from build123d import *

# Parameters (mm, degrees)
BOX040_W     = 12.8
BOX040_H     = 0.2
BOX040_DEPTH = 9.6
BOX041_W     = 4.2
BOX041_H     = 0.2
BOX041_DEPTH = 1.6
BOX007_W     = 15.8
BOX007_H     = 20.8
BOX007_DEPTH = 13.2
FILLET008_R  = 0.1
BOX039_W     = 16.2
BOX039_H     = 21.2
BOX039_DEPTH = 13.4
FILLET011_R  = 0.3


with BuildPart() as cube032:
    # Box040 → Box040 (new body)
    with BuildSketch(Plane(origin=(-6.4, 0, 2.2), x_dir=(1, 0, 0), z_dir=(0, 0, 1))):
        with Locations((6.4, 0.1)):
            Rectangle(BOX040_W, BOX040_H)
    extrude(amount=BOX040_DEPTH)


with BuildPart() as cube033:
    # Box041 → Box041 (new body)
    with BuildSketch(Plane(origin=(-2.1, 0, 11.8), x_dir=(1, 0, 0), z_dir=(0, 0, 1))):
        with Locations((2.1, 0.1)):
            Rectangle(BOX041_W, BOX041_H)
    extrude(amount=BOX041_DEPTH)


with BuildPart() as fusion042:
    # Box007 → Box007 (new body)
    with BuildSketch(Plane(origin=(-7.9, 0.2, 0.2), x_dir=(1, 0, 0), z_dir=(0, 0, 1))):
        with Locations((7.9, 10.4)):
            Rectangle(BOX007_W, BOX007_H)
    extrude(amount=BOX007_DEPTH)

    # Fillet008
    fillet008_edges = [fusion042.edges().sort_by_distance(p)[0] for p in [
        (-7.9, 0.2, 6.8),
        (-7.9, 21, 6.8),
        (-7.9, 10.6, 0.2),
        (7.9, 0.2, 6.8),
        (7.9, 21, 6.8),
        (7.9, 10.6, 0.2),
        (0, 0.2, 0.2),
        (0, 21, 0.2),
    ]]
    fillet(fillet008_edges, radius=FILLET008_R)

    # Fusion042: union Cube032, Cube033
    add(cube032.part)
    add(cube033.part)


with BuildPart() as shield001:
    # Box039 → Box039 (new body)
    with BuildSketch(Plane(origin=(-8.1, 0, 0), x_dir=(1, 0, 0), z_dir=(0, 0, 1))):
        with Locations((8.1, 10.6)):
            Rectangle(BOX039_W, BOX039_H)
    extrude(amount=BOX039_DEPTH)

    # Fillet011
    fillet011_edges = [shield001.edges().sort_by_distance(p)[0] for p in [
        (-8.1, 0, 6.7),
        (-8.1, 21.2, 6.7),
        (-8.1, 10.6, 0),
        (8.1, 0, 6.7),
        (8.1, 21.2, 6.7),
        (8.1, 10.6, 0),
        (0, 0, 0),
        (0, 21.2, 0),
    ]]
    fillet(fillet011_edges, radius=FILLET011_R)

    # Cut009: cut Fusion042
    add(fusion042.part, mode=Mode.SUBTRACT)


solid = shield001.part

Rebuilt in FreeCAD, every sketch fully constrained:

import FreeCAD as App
import Part
import Sketcher

V = App.Vector


def edges_at(feature, points):
    """Names of the edges that pass closest to the given points."""
    edges = feature.Shape.Edges
    near = lambda p: min(range(len(edges)), key=lambda i: edges[i].distToShape(Part.Vertex(*p))[0])
    return sorted({f"Edge{near(p) + 1}" for p in points})

doc = App.newDocument("Part")
body = doc.addObject("PartDesign::Body", "Body")

# Sketch on XY plane
sketch1 = doc.addObject("Sketcher::SketchObject", "Sketch")
body.addObject(sketch1)
sketch1.AttachmentSupport = (doc.XY_Plane, [""])
sketch1.MapMode = "FlatFace"
sketch1.AttachmentOffset = App.Placement(V(0, 0, 2.2), App.Rotation())
sketch1.addGeometry([
    Part.LineSegment(V(-6.4, 0.2, 0), V(-6.4, 0, 0)),
    Part.LineSegment(V(-6.4, 0, 0), V(6.4, 0, 0)),
    Part.LineSegment(V(6.4, 0, 0), V(6.4, 0.2, 0)),
    Part.LineSegment(V(6.4, 0.2, 0), V(-6.4, 0.2, 0)),
], False)
sketch1.addConstraint([
    Sketcher.Constraint("Coincident", 0, 2, 1, 1),
    Sketcher.Constraint("Coincident", 1, 2, 2, 1),
    Sketcher.Constraint("Coincident", 2, 2, 3, 1),
    Sketcher.Constraint("Coincident", 3, 2, 0, 1),
    Sketcher.Constraint("Vertical", 0),
    Sketcher.Constraint("Horizontal", 1),
    Sketcher.Constraint("Vertical", 2),
    Sketcher.Constraint("Horizontal", 3),
    Sketcher.Constraint("Symmetric", 0, 2, 1, 2, -1, 1),
    Sketcher.Constraint("DistanceX", 1, 1, 1, 2, 12.8),
    Sketcher.Constraint("DistanceY", 0, 2, 0, 1, 0.2),
])
pad1 = doc.addObject("PartDesign::Pad", "Pad")
body.addObject(pad1)
pad1.Profile = sketch1
pad1.Length = 9.6
body2 = doc.addObject("PartDesign::Body", "Body001")

# Sketch on XY plane
sketch2 = doc.addObject("Sketcher::SketchObject", "Sketch001")
body2.addObject(sketch2)
sketch2.AttachmentSupport = (doc.getObject("XY_Plane001"), [""])
sketch2.MapMode = "FlatFace"
sketch2.AttachmentOffset = App.Placement(V(0, 0, 11.8), App.Rotation())
sketch2.addGeometry([
    Part.LineSegment(V(-2.1, 0.2, 0), V(-2.1, 0, 0)),
    Part.LineSegment(V(-2.1, 0, 0), V(2.1, 0, 0)),
    Part.LineSegment(V(2.1, 0, 0), V(2.1, 0.2, 0)),
    Part.LineSegment(V(2.1, 0.2, 0), V(-2.1, 0.2, 0)),
], False)
sketch2.addConstraint([
    Sketcher.Constraint("Coincident", 0, 2, 1, 1),
    Sketcher.Constraint("Coincident", 1, 2, 2, 1),
    Sketcher.Constraint("Coincident", 2, 2, 3, 1),
    Sketcher.Constraint("Coincident", 3, 2, 0, 1),
    Sketcher.Constraint("Vertical", 0),
    Sketcher.Constraint("Horizontal", 1),
    Sketcher.Constraint("Vertical", 2),
    Sketcher.Constraint("Horizontal", 3),
    Sketcher.Constraint("Symmetric", 0, 2, 1, 2, -1, 1),
    Sketcher.Constraint("DistanceX", 1, 1, 1, 2, 4.2),
    Sketcher.Constraint("DistanceY", 0, 2, 0, 1, 0.2),
])
pad2 = doc.addObject("PartDesign::Pad", "Pad001")
body2.addObject(pad2)
pad2.Profile = sketch2
pad2.Length = 1.6
body3 = doc.addObject("PartDesign::Body", "Body002")

# Sketch on XY plane
sketch3 = doc.addObject("Sketcher::SketchObject", "Sketch002")
body3.addObject(sketch3)
sketch3.AttachmentSupport = (doc.getObject("XY_Plane002"), [""])
sketch3.MapMode = "FlatFace"
sketch3.AttachmentOffset = App.Placement(V(0, 0, 0.2), App.Rotation())
sketch3.addGeometry([
    Part.LineSegment(V(-8, 21, 0), V(-8, 0, 0)),
    Part.LineSegment(V(-8, 0, 0), V(8, 0, 0)),
    Part.LineSegment(V(8, 0, 0), V(8, 21, 0)),
    Part.LineSegment(V(8, 21, 0), V(-8, 21, 0)),
], False)
sketch3.addConstraint([
    Sketcher.Constraint("Coincident", 0, 2, 1, 1),
    Sketcher.Constraint("Coincident", 1, 2, 2, 1),
    Sketcher.Constraint("Coincident", 2, 2, 3, 1),
    Sketcher.Constraint("Coincident", 3, 2, 0, 1),
    Sketcher.Constraint("Vertical", 0),
    Sketcher.Constraint("Horizontal", 1),
    Sketcher.Constraint("Vertical", 2),
    Sketcher.Constraint("Horizontal", 3),
    Sketcher.Constraint("DistanceX", 1, 1, 1, 2, 15.8),
    Sketcher.Constraint("DistanceY", 0, 2, 0, 1, 20.8),
    Sketcher.Constraint("DistanceY", -1, 1, 2, 2, 21.0),
    Sketcher.Constraint("DistanceX", 0, 2, -1, 1, 7.9),
])
pad3 = doc.addObject("PartDesign::Pad", "Pad002")
body3.addObject(pad3)
pad3.Profile = sketch3
pad3.Length = 13.2
doc.recompute()

fillet = doc.addObject("PartDesign::Fillet", "Fillet")
body3.addObject(fillet)
fillet.Base = (pad3, edges_at(pad3, [
    (-7.9, 0.2, 6.8),
    (-7.9, 21, 6.8),
    (-7.9, 10.6, 0.2),
    (7.9, 0.2, 6.8),
    (7.9, 21, 6.8),
    (7.9, 10.6, 0.2),
    (0, 0.2, 0.2),
    (0, 21, 0.2),
]))
fillet.Radius = 0.1
doc.recompute()

boolean = doc.addObject("PartDesign::Boolean", "Boolean")
body3.addObject(boolean)
boolean.Type = "Fuse"
boolean.addObjects([body])
doc.recompute()

boolean2 = doc.addObject("PartDesign::Boolean", "Boolean001")
body3.addObject(boolean2)
boolean2.Type = "Fuse"
boolean2.addObjects([body2])
body4 = doc.addObject("PartDesign::Body", "Body003")

# Sketch on XY plane
sketch4 = doc.addObject("Sketcher::SketchObject", "Sketch003")
body4.addObject(sketch4)
sketch4.AttachmentSupport = (doc.getObject("XY_Plane003"), [""])
sketch4.MapMode = "FlatFace"
sketch4.addGeometry([
    Part.LineSegment(V(-8, 21, 0), V(-8, 0, 0)),
    Part.LineSegment(V(-8, 0, 0), V(8, 0, 0)),
    Part.LineSegment(V(8, 0, 0), V(8, 21, 0)),
    Part.LineSegment(V(8, 21, 0), V(-8, 21, 0)),
], False)
sketch4.addConstraint([
    Sketcher.Constraint("Coincident", 0, 2, 1, 1),
    Sketcher.Constraint("Coincident", 1, 2, 2, 1),
    Sketcher.Constraint("Coincident", 2, 2, 3, 1),
    Sketcher.Constraint("Coincident", 3, 2, 0, 1),
    Sketcher.Constraint("Vertical", 0),
    Sketcher.Constraint("Horizontal", 1),
    Sketcher.Constraint("Vertical", 2),
    Sketcher.Constraint("Horizontal", 3),
    Sketcher.Constraint("Symmetric", 0, 2, 1, 2, -1, 1),
    Sketcher.Constraint("DistanceX", 1, 1, 1, 2, 16.2),
    Sketcher.Constraint("DistanceY", 0, 2, 0, 1, 21.2),
])
pad4 = doc.addObject("PartDesign::Pad", "Pad003")
body4.addObject(pad4)
pad4.Profile = sketch4
pad4.Length = 13.4
doc.recompute()

fillet2 = doc.addObject("PartDesign::Fillet", "Fillet001")
body4.addObject(fillet2)
fillet2.Base = (pad4, edges_at(pad4, [
    (-8.1, 0, 6.7),
    (-8.1, 21.2, 6.7),
    (-8.1, 10.6, 0),
    (8.1, 0, 6.7),
    (8.1, 21.2, 6.7),
    (8.1, 10.6, 0),
    (0, 0, 0),
    (0, 21.2, 0),
]))
fillet2.Radius = 0.3
doc.recompute()

boolean3 = doc.addObject("PartDesign::Boolean", "Boolean002")
body4.addObject(boolean3)
boolean3.Type = "Cut"
boolean3.addObjects([body3])

doc.recompute()
